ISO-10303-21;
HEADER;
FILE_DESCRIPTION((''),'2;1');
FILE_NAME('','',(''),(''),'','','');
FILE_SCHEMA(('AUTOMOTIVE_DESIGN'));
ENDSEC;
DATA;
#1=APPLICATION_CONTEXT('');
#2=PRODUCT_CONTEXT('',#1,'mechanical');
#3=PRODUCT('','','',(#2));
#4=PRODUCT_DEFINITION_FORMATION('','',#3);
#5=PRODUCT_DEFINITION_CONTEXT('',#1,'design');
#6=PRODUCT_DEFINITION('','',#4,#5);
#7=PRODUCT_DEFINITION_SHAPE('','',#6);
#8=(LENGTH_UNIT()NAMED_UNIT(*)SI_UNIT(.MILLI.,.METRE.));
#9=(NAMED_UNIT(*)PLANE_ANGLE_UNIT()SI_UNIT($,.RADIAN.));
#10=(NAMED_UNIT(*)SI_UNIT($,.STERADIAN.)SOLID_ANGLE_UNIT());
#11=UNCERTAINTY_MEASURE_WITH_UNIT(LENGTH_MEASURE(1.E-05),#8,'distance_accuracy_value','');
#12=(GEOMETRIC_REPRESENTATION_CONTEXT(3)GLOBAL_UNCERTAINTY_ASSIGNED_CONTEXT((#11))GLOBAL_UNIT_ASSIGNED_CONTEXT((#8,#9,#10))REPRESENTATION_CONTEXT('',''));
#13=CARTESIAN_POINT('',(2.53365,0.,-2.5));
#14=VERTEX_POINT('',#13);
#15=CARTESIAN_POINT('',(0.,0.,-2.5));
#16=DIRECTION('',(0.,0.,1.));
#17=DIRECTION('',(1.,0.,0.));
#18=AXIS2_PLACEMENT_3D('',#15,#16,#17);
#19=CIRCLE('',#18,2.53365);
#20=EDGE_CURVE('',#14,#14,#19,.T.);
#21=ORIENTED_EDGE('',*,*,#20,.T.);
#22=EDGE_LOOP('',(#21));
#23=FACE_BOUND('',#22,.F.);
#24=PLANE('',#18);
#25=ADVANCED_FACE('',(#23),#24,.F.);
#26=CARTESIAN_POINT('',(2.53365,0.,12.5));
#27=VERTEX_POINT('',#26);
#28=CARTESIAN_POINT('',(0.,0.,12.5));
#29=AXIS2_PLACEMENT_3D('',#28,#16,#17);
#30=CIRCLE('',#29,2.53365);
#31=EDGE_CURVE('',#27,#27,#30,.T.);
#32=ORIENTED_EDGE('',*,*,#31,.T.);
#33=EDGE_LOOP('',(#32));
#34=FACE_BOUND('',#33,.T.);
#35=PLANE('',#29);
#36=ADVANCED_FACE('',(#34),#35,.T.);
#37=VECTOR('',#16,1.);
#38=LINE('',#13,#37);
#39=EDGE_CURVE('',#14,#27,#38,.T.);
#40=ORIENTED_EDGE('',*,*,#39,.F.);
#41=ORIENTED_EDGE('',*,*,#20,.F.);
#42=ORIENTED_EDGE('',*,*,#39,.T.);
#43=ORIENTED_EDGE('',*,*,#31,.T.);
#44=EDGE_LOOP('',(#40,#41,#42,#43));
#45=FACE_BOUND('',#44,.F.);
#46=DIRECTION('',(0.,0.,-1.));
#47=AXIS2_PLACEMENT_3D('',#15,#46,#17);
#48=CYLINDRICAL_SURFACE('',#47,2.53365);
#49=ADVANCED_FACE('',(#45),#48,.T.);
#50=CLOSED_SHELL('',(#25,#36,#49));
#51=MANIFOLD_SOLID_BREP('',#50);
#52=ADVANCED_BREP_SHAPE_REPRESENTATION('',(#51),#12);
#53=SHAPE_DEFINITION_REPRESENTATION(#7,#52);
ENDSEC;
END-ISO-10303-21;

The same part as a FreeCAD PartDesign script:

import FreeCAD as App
import Part
import Sketcher

V = App.Vector

doc = App.newDocument("Part")
body = doc.addObject("PartDesign::Body", "Body")

sketch1 = doc.addObject("Sketcher::SketchObject", "Sketch")
body.addObject(sketch1)
sketch1.AttachmentSupport = (doc.XY_Plane, [""])
sketch1.MapMode = "FlatFace"
sketch1.AttachmentOffset = App.Placement(V(0, 0, -2.5), App.Rotation())
sketch1.addGeometry(Part.Circle(V(0, 0, 0), V(0, 0, 1), 2.5), False)
sketch1.addConstraint(Sketcher.Constraint("Coincident", 0, 3, -1, 1))
sketch1.addConstraint(Sketcher.Constraint("Diameter", 0, 5.0673))
pad1 = doc.addObject("PartDesign::Pad", "Pad")
body.addObject(pad1)
pad1.Profile = sketch1
pad1.Length = 15

doc.recompute()
